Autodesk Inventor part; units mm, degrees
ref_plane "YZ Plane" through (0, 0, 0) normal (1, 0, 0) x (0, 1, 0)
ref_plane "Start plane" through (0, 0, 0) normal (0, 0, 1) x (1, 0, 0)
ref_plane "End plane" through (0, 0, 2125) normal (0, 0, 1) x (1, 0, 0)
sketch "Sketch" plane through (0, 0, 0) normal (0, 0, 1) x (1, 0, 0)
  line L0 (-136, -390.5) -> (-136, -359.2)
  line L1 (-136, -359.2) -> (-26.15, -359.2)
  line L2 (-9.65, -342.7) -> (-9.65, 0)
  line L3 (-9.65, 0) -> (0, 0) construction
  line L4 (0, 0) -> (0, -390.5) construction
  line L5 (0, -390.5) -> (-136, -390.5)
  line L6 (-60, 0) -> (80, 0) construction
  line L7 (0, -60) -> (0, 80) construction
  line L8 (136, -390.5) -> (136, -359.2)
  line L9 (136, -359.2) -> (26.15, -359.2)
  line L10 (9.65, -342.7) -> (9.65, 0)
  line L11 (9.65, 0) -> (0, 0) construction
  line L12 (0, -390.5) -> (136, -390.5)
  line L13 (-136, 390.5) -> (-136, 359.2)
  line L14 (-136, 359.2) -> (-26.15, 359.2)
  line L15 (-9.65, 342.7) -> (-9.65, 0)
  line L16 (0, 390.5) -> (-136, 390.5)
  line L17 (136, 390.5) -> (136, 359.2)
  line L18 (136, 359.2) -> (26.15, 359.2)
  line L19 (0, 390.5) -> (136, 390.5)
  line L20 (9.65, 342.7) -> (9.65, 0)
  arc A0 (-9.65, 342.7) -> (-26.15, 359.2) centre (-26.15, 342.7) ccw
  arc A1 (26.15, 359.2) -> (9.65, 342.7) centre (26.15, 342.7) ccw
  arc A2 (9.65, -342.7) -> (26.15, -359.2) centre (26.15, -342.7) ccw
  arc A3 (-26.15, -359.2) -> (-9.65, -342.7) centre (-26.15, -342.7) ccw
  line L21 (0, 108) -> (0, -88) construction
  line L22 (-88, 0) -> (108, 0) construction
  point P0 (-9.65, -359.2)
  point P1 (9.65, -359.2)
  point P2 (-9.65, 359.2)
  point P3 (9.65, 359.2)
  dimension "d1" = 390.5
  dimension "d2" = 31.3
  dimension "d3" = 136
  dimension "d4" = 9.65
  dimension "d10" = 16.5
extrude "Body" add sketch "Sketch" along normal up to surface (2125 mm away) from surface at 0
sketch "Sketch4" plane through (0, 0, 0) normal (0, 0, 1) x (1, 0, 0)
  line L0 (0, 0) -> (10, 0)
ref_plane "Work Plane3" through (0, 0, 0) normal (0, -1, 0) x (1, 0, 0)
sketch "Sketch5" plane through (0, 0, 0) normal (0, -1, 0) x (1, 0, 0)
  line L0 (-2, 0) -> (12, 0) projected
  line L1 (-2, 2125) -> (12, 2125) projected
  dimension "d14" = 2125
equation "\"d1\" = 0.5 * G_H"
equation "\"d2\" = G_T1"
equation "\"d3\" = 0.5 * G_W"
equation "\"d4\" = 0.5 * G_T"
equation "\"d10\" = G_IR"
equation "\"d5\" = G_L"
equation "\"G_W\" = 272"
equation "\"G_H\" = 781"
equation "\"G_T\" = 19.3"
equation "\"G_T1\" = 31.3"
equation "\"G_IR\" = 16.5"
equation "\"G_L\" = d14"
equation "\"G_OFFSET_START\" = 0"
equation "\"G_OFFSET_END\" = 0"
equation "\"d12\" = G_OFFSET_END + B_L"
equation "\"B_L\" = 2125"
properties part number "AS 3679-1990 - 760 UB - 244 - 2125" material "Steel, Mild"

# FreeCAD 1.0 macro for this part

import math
import FreeCAD as App
import Part
import Sketcher
from FreeCAD import Vector

doc = App.newDocument("Part")
body = doc.addObject("PartDesign::Body", "Body")

# Sketch on XY plane
sketch1 = body.newObject("Sketcher::SketchObject", "Sketch")
sketch1.AttachmentSupport = (doc.getObject("XY_Plane"), [""])
sketch1.MapMode = "FlatFace"
sketch1.addGeometry(Part.LineSegment(Vector(-136, -359.2, 0), Vector(-136, -390.5, 0)), False)
sketch1.addGeometry(Part.LineSegment(Vector(-136, -390.5, 0), Vector(136, -390.5, 0)), False)
sketch1.addGeometry(Part.LineSegment(Vector(136, -390.5, 0), Vector(136, -359.2, 0)), False)
sketch1.addGeometry(Part.LineSegment(Vector(136, -359.2, 0), Vector(26.15, -359.2, 0)), False)
sketch1.addGeometry(Part.ArcOfCircle(Part.Circle(Vector(26.15, -342.7, 0), Vector(0, 0, 1), 16.5), math.radians(180), math.radians(270)), False)
sketch1.addGeometry(Part.LineSegment(Vector(9.65, -342.7, 0), Vector(9.65, 342.7, 0)), False)
sketch1.addGeometry(Part.ArcOfCircle(Part.Circle(Vector(26.15, 342.7, 0), Vector(0, 0, 1), 16.5), math.radians(90), math.radians(180)), False)
sketch1.addGeometry(Part.LineSegment(Vector(26.15, 359.2, 0), Vector(136, 359.2, 0)), False)
sketch1.addGeometry(Part.LineSegment(Vector(136, 359.2, 0), Vector(136, 390.5, 0)), False)
sketch1.addGeometry(Part.LineSegment(Vector(136, 390.5, 0), Vector(-136, 390.5, 0)), False)
sketch1.addGeometry(Part.LineSegment(Vector(-136, 390.5, 0), Vector(-136, 359.2, 0)), False)
sketch1.addGeometry(Part.LineSegment(Vector(-136, 359.2, 0), Vector(-26.15, 359.2, 0)), False)
sketch1.addGeometry(Part.ArcOfCircle(Part.Circle(Vector(-26.15, 342.7, 0), Vector(0, 0, 1), 16.5), math.radians(0), math.radians(90)), False)
sketch1.addGeometry(Part.LineSegment(Vector(-9.65, 342.7, 0), Vector(-9.65, -342.7, 0)), False)
sketch1.addGeometry(Part.ArcOfCircle(Part.Circle(Vector(-26.15, -342.7, 0), Vector(0, 0, 1), 16.5), math.radians(-90), math.radians(0)), False)
sketch1.addGeometry(Part.LineSegment(Vector(-26.15, -359.2, 0), Vector(-136, -359.2, 0)), False)
sketch1.addConstraint(Sketcher.Constraint("Coincident", 0, 2, 1, 1))
sketch1.addConstraint(Sketcher.Constraint("Coincident", 1, 2, 2, 1))
sketch1.addConstraint(Sketcher.Constraint("Coincident", 2, 2, 3, 1))
sketch1.addConstraint(Sketcher.Constraint("Tangent", 3, 2, 4, 2))
sketch1.addConstraint(Sketcher.Constraint("Tangent", 4, 1, 5, 1))
sketch1.addConstraint(Sketcher.Constraint("Tangent", 5, 2, 6, 2))
sketch1.addConstraint(Sketcher.Constraint("Tangent", 6, 1, 7, 1))
sketch1.addConstraint(Sketcher.Constraint("Coincident", 7, 2, 8, 1))
sketch1.addConstraint(Sketcher.Constraint("Coincident", 8, 2, 9, 1))
sketch1.addConstraint(Sketcher.Constraint("Coincident", 9, 2, 10, 1))
sketch1.addConstraint(Sketcher.Constraint("Coincident", 10, 2, 11, 1))
sketch1.addConstraint(Sketcher.Constraint("Tangent", 11, 2, 12, 2))
sketch1.addConstraint(Sketcher.Constraint("Tangent", 12, 1, 13, 1))
sketch1.addConstraint(Sketcher.Constraint("Tangent", 13, 2, 14, 2))
sketch1.addConstraint(Sketcher.Constraint("Tangent", 14, 1, 15, 1))
sketch1.addConstraint(Sketcher.Constraint("Coincident", 15, 2, 0, 1))
sketch1.addConstraint(Sketcher.Constraint("Vertical", 0))
sketch1.addConstraint(Sketcher.Constraint("Horizontal", 1))
sketch1.addConstraint(Sketcher.Constraint("Vertical", 2))
sketch1.addConstraint(Sketcher.Constraint("Horizontal", 3))
sketch1.addConstraint(Sketcher.Constraint("Vertical", 5))
sketch1.addConstraint(Sketcher.Constraint("Horizontal", 7))
sketch1.addConstraint(Sketcher.Constraint("Vertical", 8))
sketch1.addConstraint(Sketcher.Constraint("Horizontal", 9))
sketch1.addConstraint(Sketcher.Constraint("Vertical", 10))
sketch1.addConstraint(Sketcher.Constraint("Horizontal", 11))
sketch1.addConstraint(Sketcher.Constraint("Vertical", 13))
sketch1.addConstraint(Sketcher.Constraint("Horizontal", 15))
sketch1.addConstraint(Sketcher.Constraint("Equal", 4, 6))
sketch1.addConstraint(Sketcher.Constraint("Equal", 6, 12))
sketch1.addConstraint(Sketcher.Constraint("Equal", 12, 14))
sketch1.addConstraint(Sketcher.Constraint("Symmetric", 4, 3, 12, 3, -1, 1))
sketch1.addConstraint(Sketcher.Constraint("Symmetric", 0, 2, 8, 2, -1, 1))
sketch1.addConstraint(Sketcher.Constraint("Symmetric", 7, 2, 10, 2, -2))
sketch1.addConstraint(Sketcher.Constraint("Symmetric", 2, 2, 15, 2, -2))
sketch1.addConstraint(Sketcher.Constraint("Radius", 4, 16.5))
sketch1.addConstraint(Sketcher.Constraint("DistanceY", 0, 2, 0, 1, 31.3))
sketch1.addConstraint(Sketcher.Constraint("DistanceX", 0, 2, -1, 1, 136.0))
sketch1.addConstraint(Sketcher.Constraint("DistanceY", 0, 2, -1, 1, 390.5))
sketch1.addConstraint(Sketcher.Constraint("DistanceX", -1, 1, 4, 1, 9.65))
pad1 = body.newObject("PartDesign::Pad", "Pad")
pad1.Profile = sketch1
pad1.Length = 2125

doc.recompute()
